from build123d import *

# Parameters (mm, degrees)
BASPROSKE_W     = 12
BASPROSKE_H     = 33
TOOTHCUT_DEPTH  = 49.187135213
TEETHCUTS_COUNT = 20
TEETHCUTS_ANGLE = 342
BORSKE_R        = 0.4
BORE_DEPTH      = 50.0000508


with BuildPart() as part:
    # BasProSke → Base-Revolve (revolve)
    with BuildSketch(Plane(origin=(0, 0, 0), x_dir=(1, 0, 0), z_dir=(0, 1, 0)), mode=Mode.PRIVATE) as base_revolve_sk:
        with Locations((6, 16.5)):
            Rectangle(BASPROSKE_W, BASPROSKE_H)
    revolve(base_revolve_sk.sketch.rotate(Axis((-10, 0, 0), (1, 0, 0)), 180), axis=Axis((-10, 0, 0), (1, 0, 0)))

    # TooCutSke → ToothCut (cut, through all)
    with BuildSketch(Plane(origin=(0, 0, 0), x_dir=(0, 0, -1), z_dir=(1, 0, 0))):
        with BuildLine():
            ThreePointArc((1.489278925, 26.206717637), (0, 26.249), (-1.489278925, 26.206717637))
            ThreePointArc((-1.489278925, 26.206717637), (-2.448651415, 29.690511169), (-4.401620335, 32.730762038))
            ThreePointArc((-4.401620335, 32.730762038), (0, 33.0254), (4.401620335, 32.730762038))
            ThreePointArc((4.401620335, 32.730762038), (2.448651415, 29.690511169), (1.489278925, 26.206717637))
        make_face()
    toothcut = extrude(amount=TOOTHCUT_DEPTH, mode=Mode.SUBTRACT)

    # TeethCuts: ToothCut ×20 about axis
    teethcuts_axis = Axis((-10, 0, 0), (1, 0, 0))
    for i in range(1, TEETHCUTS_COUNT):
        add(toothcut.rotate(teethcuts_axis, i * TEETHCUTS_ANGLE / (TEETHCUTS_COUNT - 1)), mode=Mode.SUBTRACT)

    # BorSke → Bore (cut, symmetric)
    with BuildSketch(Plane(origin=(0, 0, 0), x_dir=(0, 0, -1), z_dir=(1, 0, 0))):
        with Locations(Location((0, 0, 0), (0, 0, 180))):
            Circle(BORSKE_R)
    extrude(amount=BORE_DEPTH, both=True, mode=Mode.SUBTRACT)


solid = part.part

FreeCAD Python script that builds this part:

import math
import FreeCAD as App
import Part
import Sketcher

V = App.Vector


def add_polygon(sketch, points):
    """Adds a closed chain of lines whose ends are joined by coincident constraints."""
    first, n = sketch.GeometryCount, len(points)
    for a, b in zip(points, points[1:] + points[:1]):
        sketch.addGeometry(Part.LineSegment(App.Vector(*a, 0), App.Vector(*b, 0)), False)
    for i in range(n):
        sketch.addConstraint(Sketcher.Constraint("Coincident", first + i, 2, first + (i + 1) % n, 1))

doc = App.newDocument("Part")
params = doc.addObject("Spreadsheet::Sheet", "Params")
for row, (alias, value) in enumerate([
    ("sketch1_width", "12 mm"),
    ("sketch1_height", "33 mm"),
    ("revolution_angle", "360 deg"),
    ("sketch2_radius", "12 mm"),
    ("sketch3_diameter", "0.8 mm"),
    ("pocket2_length", "100.000102 mm"),
], start=1):
    params.set(f"A{row}", alias)
    params.set(f"B{row}", "=" + value)
    params.setAlias(f"B{row}", alias)

body = doc.addObject("PartDesign::Body", "Body")

# Sketch on XZ plane
sketch1 = body.newObject("Sketcher::SketchObject", "Sketch")
sketch1.AttachmentSupport = (doc.getObject("XZ_Plane"), [""])
sketch1.MapMode = "FlatFace"
add_polygon(sketch1, [(0, -33), (0, 0), (12, 0), (12, -33)])  # lines 0-3
sketch1.addConstraint(Sketcher.Constraint("Vertical", 0))
sketch1.addConstraint(Sketcher.Constraint("Horizontal", 1))
sketch1.addConstraint(Sketcher.Constraint("Vertical", 2))
sketch1.addConstraint(Sketcher.Constraint("Horizontal", 3))
sketch1.addConstraint(Sketcher.Constraint("Coincident", 0, 2, -1, 1))
sketch1.addConstraint(Sketcher.Constraint("DistanceX", 1, 1, 1, 2, 12.0))
sketch1.addConstraint(Sketcher.Constraint("DistanceY", 0, 1, 0, 2, 33.0))
sketch1.setExpression("Constraints[9]", "Params.sketch1_width")
sketch1.setExpression("Constraints[10]", "Params.sketch1_height")
revolution = body.newObject("PartDesign::Revolution", "Revolution")
revolution.Profile = sketch1
revolution.ReferenceAxis = (sketch1, ["H_Axis"])
revolution.setExpression("Angle", "Params.revolution_angle")

# Sketch on YZ plane
sketch2 = body.newObject("Sketcher::SketchObject", "Sketch001")
sketch2.AttachmentSupport = (doc.getObject("YZ_Plane"), [""])
sketch2.MapMode = "FlatFace"
sketch2.addGeometry(Part.ArcOfCircle(Part.Circle(V(0, 0, 0), V(0, 0, 1), 26.2), math.radians(-3.25), math.radians(3.25)), False)
sketch2.addGeometry(Part.ArcOfCircle(Part.Circle(V(24.8, -13.4, 0), V(0, 0, 1), 12), math.radians(49), math.radians(83)), False)
sketch2.addGeometry(Part.ArcOfCircle(Part.Circle(V(0, 0, 0), V(0, 0, 1), 33), math.radians(-7.66), math.radians(7.66)), False)
sketch2.addGeometry(Part.ArcOfCircle(Part.Circle(V(24.8, 13.4, 0), V(0, 0, 1), 12), math.radians(-83), math.radians(-49)), False)
sketch2.addConstraint(Sketcher.Constraint("Coincident", 0, 1, 1, 2))
sketch2.addConstraint(Sketcher.Constraint("Coincident", 1, 1, 2, 1))
sketch2.addConstraint(Sketcher.Constraint("Coincident", 2, 2, 3, 2))
sketch2.addConstraint(Sketcher.Constraint("Coincident", 3, 1, 0, 2))
sketch2.addConstraint(Sketcher.Constraint("Coincident", 0, 3, -1, 1))
sketch2.addConstraint(Sketcher.Constraint("Coincident", 2, 3, -1, 1))
sketch2.addConstraint(Sketcher.Constraint("Equal", 1, 3))
sketch2.addConstraint(Sketcher.Constraint("Symmetric", 1, 3, 3, 3, -1))
sketch2.addConstraint(Sketcher.Constraint("Radius", 1, 12.0))
sketch2.addConstraint(Sketcher.Constraint("Radius", 0, 26.249))
sketch2.addConstraint(Sketcher.Constraint("Radius", 2, 33.0254))
sketch2.addConstraint(Sketcher.Constraint("DistanceY", 0, 1, 2, 2, 5.890899))
sketch2.addConstraint(Sketcher.Constraint("DistanceX", -1, 1, 1, 3, 24.798951))
sketch2.setExpression("Constraints[8]", "Params.sketch2_radius")
pocket1 = body.newObject("PartDesign::Pocket", "Pocket")
pocket1.Profile = sketch2
pocket1.Type = "ThroughAll"
pocket1.Reversed = True
doc.recompute()

polarpattern = body.newObject("PartDesign::PolarPattern", "PolarPattern")
polarpattern.Originals = [pocket1]
polarpattern.Axis = (doc.getObject("X_Axis"), [""])
polarpattern.Angle = 360
polarpattern.Occurrences = 20
body.Tip = polarpattern

# Sketch on YZ plane
sketch3 = body.newObject("Sketcher::SketchObject", "Sketch002")
sketch3.AttachmentSupport = (doc.getObject("YZ_Plane"), [""])
sketch3.MapMode = "FlatFace"
sketch3.addGeometry(Part.Circle(V(0, 0, 0), V(0, 0, 1), 0.4), False)
sketch3.addConstraint(Sketcher.Constraint("Coincident", 0, 3, -1, 1))
sketch3.addConstraint(Sketcher.Constraint("Diameter", 0, 0.8))
sketch3.setExpression("Constraints[1]", "Params.sketch3_diameter")
pocket2 = body.newObject("PartDesign::Pocket", "Pocket001")
pocket2.Profile = sketch3
pocket2.setExpression("Length", "Params.pocket2_length")
pocket2.Midplane = True

doc.recompute()
